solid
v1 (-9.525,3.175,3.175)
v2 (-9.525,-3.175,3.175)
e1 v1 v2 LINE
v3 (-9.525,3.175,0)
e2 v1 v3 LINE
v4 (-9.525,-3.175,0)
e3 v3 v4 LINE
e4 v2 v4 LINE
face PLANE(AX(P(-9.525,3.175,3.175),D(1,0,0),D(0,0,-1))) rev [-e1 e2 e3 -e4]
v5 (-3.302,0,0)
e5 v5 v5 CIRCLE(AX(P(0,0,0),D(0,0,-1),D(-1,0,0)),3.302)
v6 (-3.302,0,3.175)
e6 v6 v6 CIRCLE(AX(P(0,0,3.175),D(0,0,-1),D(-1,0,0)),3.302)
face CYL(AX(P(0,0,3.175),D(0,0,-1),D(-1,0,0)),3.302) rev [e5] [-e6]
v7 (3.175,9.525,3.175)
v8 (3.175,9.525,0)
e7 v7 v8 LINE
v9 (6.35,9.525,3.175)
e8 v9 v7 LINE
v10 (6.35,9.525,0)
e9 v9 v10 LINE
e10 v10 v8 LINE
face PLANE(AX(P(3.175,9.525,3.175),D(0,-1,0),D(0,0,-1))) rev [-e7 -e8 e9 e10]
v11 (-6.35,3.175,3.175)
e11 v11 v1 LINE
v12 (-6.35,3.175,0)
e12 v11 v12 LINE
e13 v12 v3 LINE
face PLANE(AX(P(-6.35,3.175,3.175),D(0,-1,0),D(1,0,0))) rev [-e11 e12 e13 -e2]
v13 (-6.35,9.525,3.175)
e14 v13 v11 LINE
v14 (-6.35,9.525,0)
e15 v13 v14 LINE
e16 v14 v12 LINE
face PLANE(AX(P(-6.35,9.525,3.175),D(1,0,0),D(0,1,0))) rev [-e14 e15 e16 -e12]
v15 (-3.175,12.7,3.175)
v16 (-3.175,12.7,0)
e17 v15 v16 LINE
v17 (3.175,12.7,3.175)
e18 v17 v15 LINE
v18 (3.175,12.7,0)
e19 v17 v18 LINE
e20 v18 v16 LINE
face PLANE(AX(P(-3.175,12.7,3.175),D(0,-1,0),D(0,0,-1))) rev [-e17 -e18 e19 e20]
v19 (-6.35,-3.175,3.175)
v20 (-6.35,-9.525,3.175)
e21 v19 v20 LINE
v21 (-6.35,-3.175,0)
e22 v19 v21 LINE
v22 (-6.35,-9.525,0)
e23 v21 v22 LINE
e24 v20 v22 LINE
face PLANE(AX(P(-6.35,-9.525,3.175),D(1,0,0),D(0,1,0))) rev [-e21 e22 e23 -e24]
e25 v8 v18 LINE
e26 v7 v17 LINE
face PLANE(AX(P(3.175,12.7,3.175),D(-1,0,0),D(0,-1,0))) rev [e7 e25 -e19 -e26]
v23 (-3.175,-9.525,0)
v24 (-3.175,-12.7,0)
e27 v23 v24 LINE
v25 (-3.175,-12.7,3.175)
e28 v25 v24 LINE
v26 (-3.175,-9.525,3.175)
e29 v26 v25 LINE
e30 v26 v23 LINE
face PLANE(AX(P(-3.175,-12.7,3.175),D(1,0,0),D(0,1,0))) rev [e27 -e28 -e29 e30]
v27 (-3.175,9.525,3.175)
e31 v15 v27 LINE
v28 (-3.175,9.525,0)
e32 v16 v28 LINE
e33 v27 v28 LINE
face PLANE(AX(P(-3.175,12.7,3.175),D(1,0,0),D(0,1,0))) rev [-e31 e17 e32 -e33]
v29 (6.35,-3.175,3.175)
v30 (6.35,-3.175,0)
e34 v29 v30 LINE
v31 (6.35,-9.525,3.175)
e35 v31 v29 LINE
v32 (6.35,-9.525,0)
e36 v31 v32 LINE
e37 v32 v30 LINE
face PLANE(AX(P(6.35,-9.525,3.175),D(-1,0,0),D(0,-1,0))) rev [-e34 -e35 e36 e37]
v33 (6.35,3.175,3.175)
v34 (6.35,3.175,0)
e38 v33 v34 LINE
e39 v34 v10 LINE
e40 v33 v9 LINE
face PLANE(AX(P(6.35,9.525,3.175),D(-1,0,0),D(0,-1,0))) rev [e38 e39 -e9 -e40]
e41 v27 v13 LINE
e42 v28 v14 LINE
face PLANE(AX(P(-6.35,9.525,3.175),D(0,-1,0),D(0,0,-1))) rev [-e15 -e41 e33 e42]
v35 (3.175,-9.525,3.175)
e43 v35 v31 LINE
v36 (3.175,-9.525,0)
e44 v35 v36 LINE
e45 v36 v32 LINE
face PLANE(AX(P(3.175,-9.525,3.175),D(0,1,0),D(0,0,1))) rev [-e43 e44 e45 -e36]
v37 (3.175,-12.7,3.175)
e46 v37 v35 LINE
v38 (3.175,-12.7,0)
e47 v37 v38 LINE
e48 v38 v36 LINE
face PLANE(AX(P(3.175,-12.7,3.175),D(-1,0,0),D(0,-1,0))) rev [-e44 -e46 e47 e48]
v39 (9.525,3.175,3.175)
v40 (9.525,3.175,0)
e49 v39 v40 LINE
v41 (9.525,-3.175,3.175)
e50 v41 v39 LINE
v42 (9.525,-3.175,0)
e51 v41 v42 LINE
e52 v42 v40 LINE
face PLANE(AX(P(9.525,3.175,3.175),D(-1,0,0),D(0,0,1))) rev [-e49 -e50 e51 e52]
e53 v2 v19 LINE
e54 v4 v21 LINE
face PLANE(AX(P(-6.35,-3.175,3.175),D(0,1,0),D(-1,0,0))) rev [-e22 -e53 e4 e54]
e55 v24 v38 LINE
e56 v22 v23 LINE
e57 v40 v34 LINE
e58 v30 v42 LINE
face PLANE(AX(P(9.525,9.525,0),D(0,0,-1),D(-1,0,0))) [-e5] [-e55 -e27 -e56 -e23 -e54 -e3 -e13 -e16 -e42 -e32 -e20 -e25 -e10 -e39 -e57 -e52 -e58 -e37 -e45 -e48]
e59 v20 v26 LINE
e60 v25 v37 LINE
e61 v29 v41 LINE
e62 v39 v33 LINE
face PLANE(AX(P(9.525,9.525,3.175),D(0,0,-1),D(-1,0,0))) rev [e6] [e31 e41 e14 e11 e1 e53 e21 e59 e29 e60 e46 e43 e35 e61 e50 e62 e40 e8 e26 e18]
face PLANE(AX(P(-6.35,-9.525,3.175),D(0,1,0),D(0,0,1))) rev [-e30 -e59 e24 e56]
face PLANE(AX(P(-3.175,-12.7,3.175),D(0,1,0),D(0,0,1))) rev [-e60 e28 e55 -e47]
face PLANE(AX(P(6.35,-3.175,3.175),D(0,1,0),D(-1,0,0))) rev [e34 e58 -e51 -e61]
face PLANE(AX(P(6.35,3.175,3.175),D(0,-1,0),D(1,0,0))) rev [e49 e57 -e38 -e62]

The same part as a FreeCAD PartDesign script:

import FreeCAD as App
import Part
import Sketcher
Q = App.Units.Quantity

doc = App.newDocument("Part")
body = doc.addObject("PartDesign::Body", "Body")

sketch1 = doc.addObject("Sketcher::SketchObject", "Sketch")
body.addObject(sketch1)
sketch1.AttachmentSupport = (doc.XY_Plane, [""])
sketch1.MapMode = "FlatFace"
sketch1.addGeometry([
    Part.LineSegment(App.Vector(6.35, 9.525, 0), App.Vector(3.175, 9.525, 0)),
    Part.LineSegment(App.Vector(3.175, 9.525, 0), App.Vector(3.175, 12.7, 0)),
    Part.LineSegment(App.Vector(3.175, 12.7, 0), App.Vector(-3.175, 12.7, 0)),
    Part.LineSegment(App.Vector(-3.175, 12.7, 0), App.Vector(-3.175, 9.525, 0)),
    Part.LineSegment(App.Vector(-3.175, 9.525, 0), App.Vector(-6.35, 9.525, 0)),
    Part.LineSegment(App.Vector(-6.35, 9.525, 0), App.Vector(-6.35, 3.175, 0)),
    Part.LineSegment(App.Vector(-6.35, 3.175, 0), App.Vector(-9.525, 3.175, 0)),
    Part.LineSegment(App.Vector(-9.525, 3.175, 0), App.Vector(-9.525, -3.175, 0)),
    Part.LineSegment(App.Vector(-9.525, -3.175, 0), App.Vector(-6.35, -3.175, 0)),
    Part.LineSegment(App.Vector(-6.35, -3.175, 0), App.Vector(-6.35, -9.525, 0)),
    Part.LineSegment(App.Vector(-6.35, -9.525, 0), App.Vector(-3.175, -9.525, 0)),
    Part.LineSegment(App.Vector(-3.175, -9.525, 0), App.Vector(-3.175, -12.7, 0)),
    Part.LineSegment(App.Vector(-3.175, -12.7, 0), App.Vector(3.175, -12.7, 0)),
    Part.LineSegment(App.Vector(3.175, -12.7, 0), App.Vector(3.175, -9.525, 0)),
    Part.LineSegment(App.Vector(3.175, -9.525, 0), App.Vector(6.35, -9.525, 0)),
    Part.LineSegment(App.Vector(6.35, -9.525, 0), App.Vector(6.35, -3.175, 0)),
    Part.LineSegment(App.Vector(6.35, -3.175, 0), App.Vector(9.525, -3.175, 0)),
    Part.LineSegment(App.Vector(9.525, -3.175, 0), App.Vector(9.525, 3.175, 0)),
    Part.LineSegment(App.Vector(9.525, 3.175, 0), App.Vector(6.35, 3.175, 0)),
    Part.LineSegment(App.Vector(6.35, 3.175, 0), App.Vector(6.35, 9.525, 0)),
], False)
sketch1.addConstraint([
    Sketcher.Constraint("Coincident", 0, 2, 1, 1),
    Sketcher.Constraint("Coincident", 1, 2, 2, 1),
    Sketcher.Constraint("Coincident", 2, 2, 3, 1),
    Sketcher.Constraint("Coincident", 3, 2, 4, 1),
    Sketcher.Constraint("Coincident", 4, 2, 5, 1),
    Sketcher.Constraint("Coincident", 5, 2, 6, 1),
    Sketcher.Constraint("Coincident", 6, 2, 7, 1),
    Sketcher.Constraint("Coincident", 7, 2, 8, 1),
    Sketcher.Constraint("Coincident", 8, 2, 9, 1),
    Sketcher.Constraint("Coincident", 9, 2, 10, 1),
    Sketcher.Constraint("Coincident", 10, 2, 11, 1),
    Sketcher.Constraint("Coincident", 11, 2, 12, 1),
    Sketcher.Constraint("Coincident", 12, 2, 13, 1),
    Sketcher.Constraint("Coincident", 13, 2, 14, 1),
    Sketcher.Constraint("Coincident", 14, 2, 15, 1),
    Sketcher.Constraint("Coincident", 15, 2, 16, 1),
    Sketcher.Constraint("Coincident", 16, 2, 17, 1),
    Sketcher.Constraint("Coincident", 17, 2, 18, 1),
    Sketcher.Constraint("Coincident", 18, 2, 19, 1),
    Sketcher.Constraint("Coincident", 19, 2, 0, 1),
    Sketcher.Constraint("Horizontal", 0),
    Sketcher.Constraint("Vertical", 1),
    Sketcher.Constraint("Horizontal", 2),
    Sketcher.Constraint("Vertical", 3),
    Sketcher.Constraint("Horizontal", 4),
    Sketcher.Constraint("Vertical", 5),
    Sketcher.Constraint("Horizontal", 6),
    Sketcher.Constraint("Vertical", 7),
    Sketcher.Constraint("Horizontal", 8),
    Sketcher.Constraint("Vertical", 9),
    Sketcher.Constraint("Horizontal", 10),
    Sketcher.Constraint("Vertical", 11),
    Sketcher.Constraint("Horizontal", 12),
    Sketcher.Constraint("Vertical", 13),
    Sketcher.Constraint("Horizontal", 14),
    Sketcher.Constraint("Vertical", 15),
    Sketcher.Constraint("Horizontal", 16),
    Sketcher.Constraint("Vertical", 17),
    Sketcher.Constraint("Horizontal", 18),
    Sketcher.Constraint("Vertical", 19),
    Sketcher.Constraint("Symmetric", 0, 2, 10, 2, -1, 1),
    Sketcher.Constraint("Symmetric", 2, 2, 12, 2, -1, 1),
    Sketcher.Constraint("Symmetric", 4, 2, 14, 2, -1, 1),
    Sketcher.Constraint("Symmetric", 6, 2, 16, 2, -1, 1),
    Sketcher.Constraint("Symmetric", 8, 2, 18, 2, -1, 1),
    Sketcher.Constraint("Symmetric", 0, 2, 3, 2, -2),
    Sketcher.Constraint("Symmetric", 8, 2, 15, 2, -2),
    Sketcher.Constraint("Equal", 4, 6),
    Sketcher.Constraint("Equal", 18, 1),
    Sketcher.Constraint("Equal", 12, 5),
    Sketcher.Constraint("Equal", 5, 7),
    Sketcher.Constraint("DistanceX", 2, 2, 2, 1, Q("0.25 in")),
    Sketcher.Constraint("DistanceY", -1, 1, 1, 2, Q("0.5 in")),
])
pad1 = doc.addObject("PartDesign::Pad", "Pad")
body.addObject(pad1)
pad1.Profile = sketch1
pad1.Length = Q("0.125 in")

sketch2 = doc.addObject("Sketcher::SketchObject", "Sketch001")
body.addObject(sketch2)
sketch2.AttachmentSupport = (doc.XY_Plane, [""])
sketch2.MapMode = "FlatFace"
sketch2.addGeometry(Part.Circle(App.Vector(0, 0, 0), App.Vector(0, 0, 1), 3.302), False)
sketch2.addConstraint([
    Sketcher.Constraint("Coincident", 0, 3, -1, 1),
    Sketcher.Constraint("Diameter", 0, Q("0.26 in")),
])
pocket1 = doc.addObject("PartDesign::Pocket", "Pocket")
body.addObject(pocket1)
pocket1.Profile = sketch2
pocket1.Length = Q("0.125 in")
pocket1.Reversed = True

doc.recompute()
